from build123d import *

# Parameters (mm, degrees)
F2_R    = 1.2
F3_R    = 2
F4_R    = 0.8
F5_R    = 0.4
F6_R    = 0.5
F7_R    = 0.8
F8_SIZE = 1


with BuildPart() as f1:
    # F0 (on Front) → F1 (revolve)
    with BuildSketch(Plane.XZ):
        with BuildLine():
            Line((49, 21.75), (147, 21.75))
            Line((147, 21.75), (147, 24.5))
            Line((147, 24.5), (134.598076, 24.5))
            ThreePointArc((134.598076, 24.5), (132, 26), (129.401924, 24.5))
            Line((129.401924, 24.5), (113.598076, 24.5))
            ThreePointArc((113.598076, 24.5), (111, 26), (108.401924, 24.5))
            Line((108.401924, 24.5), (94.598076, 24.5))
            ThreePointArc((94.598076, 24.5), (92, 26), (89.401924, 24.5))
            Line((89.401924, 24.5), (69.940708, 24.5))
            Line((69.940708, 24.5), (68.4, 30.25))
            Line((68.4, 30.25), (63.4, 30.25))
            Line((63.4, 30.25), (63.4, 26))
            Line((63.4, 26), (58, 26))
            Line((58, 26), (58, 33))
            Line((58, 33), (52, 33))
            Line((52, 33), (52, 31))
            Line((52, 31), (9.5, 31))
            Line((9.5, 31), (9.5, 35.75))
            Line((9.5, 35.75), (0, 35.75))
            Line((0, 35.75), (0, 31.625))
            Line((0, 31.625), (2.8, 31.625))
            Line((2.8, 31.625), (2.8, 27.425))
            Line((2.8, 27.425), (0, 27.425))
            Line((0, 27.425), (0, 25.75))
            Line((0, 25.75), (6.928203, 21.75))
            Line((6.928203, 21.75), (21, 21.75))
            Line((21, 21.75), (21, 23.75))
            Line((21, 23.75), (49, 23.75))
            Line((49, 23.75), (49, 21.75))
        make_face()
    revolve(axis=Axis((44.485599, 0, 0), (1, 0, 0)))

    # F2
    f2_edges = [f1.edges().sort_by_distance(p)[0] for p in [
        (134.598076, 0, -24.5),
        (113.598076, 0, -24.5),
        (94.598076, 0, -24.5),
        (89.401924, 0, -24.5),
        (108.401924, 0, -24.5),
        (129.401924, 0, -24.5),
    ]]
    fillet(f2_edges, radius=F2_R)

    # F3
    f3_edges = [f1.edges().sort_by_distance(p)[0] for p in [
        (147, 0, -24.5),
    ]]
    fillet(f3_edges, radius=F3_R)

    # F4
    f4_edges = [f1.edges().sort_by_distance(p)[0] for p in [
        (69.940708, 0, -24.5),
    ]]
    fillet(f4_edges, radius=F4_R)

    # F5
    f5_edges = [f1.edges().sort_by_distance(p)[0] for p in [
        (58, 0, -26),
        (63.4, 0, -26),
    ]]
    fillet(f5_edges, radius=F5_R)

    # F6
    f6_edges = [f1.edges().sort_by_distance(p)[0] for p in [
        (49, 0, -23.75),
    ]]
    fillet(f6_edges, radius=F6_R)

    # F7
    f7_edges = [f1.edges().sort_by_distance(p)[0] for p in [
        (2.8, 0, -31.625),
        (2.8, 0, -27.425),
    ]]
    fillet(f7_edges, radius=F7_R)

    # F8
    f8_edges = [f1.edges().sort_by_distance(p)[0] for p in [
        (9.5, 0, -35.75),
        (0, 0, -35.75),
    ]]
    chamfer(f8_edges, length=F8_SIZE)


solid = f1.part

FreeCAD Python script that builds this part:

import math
import FreeCAD as App
import Part
import Sketcher
from FreeCAD import Vector
Q = App.Units.Quantity


def edges_at(feature, points):
    """Names of the edges that pass closest to the given points."""
    edges = feature.Shape.Edges
    near = lambda p: min(range(len(edges)), key=lambda i: edges[i].distToShape(Part.Vertex(*p))[0])
    return sorted({f"Edge{near(p) + 1}" for p in points})

doc = App.newDocument("Part")
body = doc.addObject("PartDesign::Body", "Body")

# Sketch on XZ plane
sketch1 = body.newObject("Sketcher::SketchObject", "Sketch")
sketch1.AttachmentSupport = (doc.getObject("XZ_Plane"), [""])
sketch1.MapMode = "FlatFace"
sketch1.addGeometry([
    Part.LineSegment(Vector(49, 21.8, 0), Vector(147, 21.8, 0)),  # 0
    Part.LineSegment(Vector(147, 21.8, 0), Vector(147, 24.5, 0)),  # 1
    Part.LineSegment(Vector(147, 24.5, 0), Vector(134.6, 24.5, 0)),  # 2
    Part.ArcOfCircle(Part.Circle(Vector(132, 23, 0), Vector(0, 0, 1), 3), math.radians(30), math.radians(150)),  # 3
    Part.LineSegment(Vector(129.4, 24.5, 0), Vector(113.6, 24.5, 0)),  # 4
    Part.ArcOfCircle(Part.Circle(Vector(111, 23, 0), Vector(0, 0, 1), 3), math.radians(30), math.radians(150)),  # 5
    Part.LineSegment(Vector(108.4, 24.5, 0), Vector(94.6, 24.5, 0)),  # 6
    Part.ArcOfCircle(Part.Circle(Vector(92, 23, 0), Vector(0, 0, 1), 3), math.radians(30), math.radians(150)),  # 7
    Part.LineSegment(Vector(89.4, 24.5, 0), Vector(69.9, 24.5, 0)),  # 8
    Part.LineSegment(Vector(69.9, 24.5, 0), Vector(68.4, 30.2, 0)),  # 9
    Part.LineSegment(Vector(68.4, 30.2, 0), Vector(63.4, 30.2, 0)),  # 10
    Part.LineSegment(Vector(63.4, 30.2, 0), Vector(63.4, 26, 0)),  # 11
    Part.LineSegment(Vector(63.4, 26, 0), Vector(58, 26, 0)),  # 12
    Part.LineSegment(Vector(58, 26, 0), Vector(58, 33, 0)),  # 13
    Part.LineSegment(Vector(58, 33, 0), Vector(52, 33, 0)),  # 14
    Part.LineSegment(Vector(52, 33, 0), Vector(52, 31, 0)),  # 15
    Part.LineSegment(Vector(52, 31, 0), Vector(9.5, 31, 0)),  # 16
    Part.LineSegment(Vector(9.5, 31, 0), Vector(9.5, 35.8, 0)),  # 17
    Part.LineSegment(Vector(9.5, 35.8, 0), Vector(0, 35.8, 0)),  # 18
    Part.LineSegment(Vector(0, 35.8, 0), Vector(0, 31.6, 0)),  # 19
    Part.LineSegment(Vector(0, 31.6, 0), Vector(2.8, 31.6, 0)),  # 20
    Part.LineSegment(Vector(2.8, 31.6, 0), Vector(2.8, 27.4, 0)),  # 21
    Part.LineSegment(Vector(2.8, 27.4, 0), Vector(0, 27.4, 0)),  # 22
    Part.LineSegment(Vector(0, 27.4, 0), Vector(0, 25.8, 0)),  # 23
    Part.LineSegment(Vector(0, 25.8, 0), Vector(6.9, 21.8, 0)),  # 24
    Part.LineSegment(Vector(6.9, 21.8, 0), Vector(21, 21.8, 0)),  # 25
    Part.LineSegment(Vector(21, 21.8, 0), Vector(21, 23.8, 0)),  # 26
    Part.LineSegment(Vector(21, 23.8, 0), Vector(49, 23.8, 0)),  # 27
    Part.LineSegment(Vector(49, 23.8, 0), Vector(49, 21.8, 0)),  # 28
], False)
sketch1.addConstraint([
    Sketcher.Constraint("Coincident", 0, 2, 1, 1),
    Sketcher.Constraint("Coincident", 1, 2, 2, 1),
    Sketcher.Constraint("Coincident", 2, 2, 3, 1),
    Sketcher.Constraint("Coincident", 3, 2, 4, 1),
    Sketcher.Constraint("Coincident", 4, 2, 5, 1),
    Sketcher.Constraint("Coincident", 5, 2, 6, 1),
    Sketcher.Constraint("Coincident", 6, 2, 7, 1),
    Sketcher.Constraint("Coincident", 7, 2, 8, 1),
    Sketcher.Constraint("Coincident", 8, 2, 9, 1),
    Sketcher.Constraint("Coincident", 9, 2, 10, 1),
    Sketcher.Constraint("Coincident", 10, 2, 11, 1),
    Sketcher.Constraint("Coincident", 11, 2, 12, 1),
    Sketcher.Constraint("Coincident", 12, 2, 13, 1),
    Sketcher.Constraint("Coincident", 13, 2, 14, 1),
    Sketcher.Constraint("Coincident", 14, 2, 15, 1),
    Sketcher.Constraint("Coincident", 15, 2, 16, 1),
    Sketcher.Constraint("Coincident", 16, 2, 17, 1),
    Sketcher.Constraint("Coincident", 17, 2, 18, 1),
    Sketcher.Constraint("Coincident", 18, 2, 19, 1),
    Sketcher.Constraint("Coincident", 19, 2, 20, 1),
    Sketcher.Constraint("Coincident", 20, 2, 21, 1),
    Sketcher.Constraint("Coincident", 21, 2, 22, 1),
    Sketcher.Constraint("Coincident", 22, 2, 23, 1),
    Sketcher.Constraint("Coincident", 23, 2, 24, 1),
    Sketcher.Constraint("Coincident", 24, 2, 25, 1),
    Sketcher.Constraint("Coincident", 25, 2, 26, 1),
    Sketcher.Constraint("Coincident", 26, 2, 27, 1),
    Sketcher.Constraint("Coincident", 27, 2, 28, 1),
    Sketcher.Constraint("Coincident", 28, 2, 0, 1),
    Sketcher.Constraint("Horizontal", 0),
    Sketcher.Constraint("Vertical", 1),
    Sketcher.Constraint("Horizontal", 2),
    Sketcher.Constraint("Horizontal", 4),
    Sketcher.Constraint("Horizontal", 6),
    Sketcher.Constraint("Horizontal", 8),
    Sketcher.Constraint("Horizontal", 10),
    Sketcher.Constraint("Vertical", 11),
    Sketcher.Constraint("Horizontal", 12),
    Sketcher.Constraint("Vertical", 13),
    Sketcher.Constraint("Horizontal", 14),
    Sketcher.Constraint("Vertical", 15),
    Sketcher.Constraint("Horizontal", 16),
    Sketcher.Constraint("Vertical", 17),
    Sketcher.Constraint("Horizontal", 18),
    Sketcher.Constraint("Vertical", 19),
    Sketcher.Constraint("Horizontal", 20),
    Sketcher.Constraint("Vertical", 21),
    Sketcher.Constraint("Horizontal", 22),
    Sketcher.Constraint("Vertical", 23),
    Sketcher.Constraint("Horizontal", 25),
    Sketcher.Constraint("Vertical", 26),
    Sketcher.Constraint("Horizontal", 27),
    Sketcher.Constraint("Vertical", 28),
    Sketcher.Constraint("Equal", 3, 5),
    Sketcher.Constraint("Equal", 5, 7),
    Sketcher.Constraint("PointOnObject", 18, 2, -2),
    Sketcher.Constraint("PointOnObject", 22, 2, -2),
    Sketcher.Constraint("Horizontal", 3, 3, 5, 3),
    Sketcher.Constraint("Horizontal", 5, 3, 7, 3),
    Sketcher.Constraint("Horizontal", 2, 2, 3, 2),
    Sketcher.Constraint("Horizontal", 4, 2, 5, 2),
    Sketcher.Constraint("Horizontal", 6, 2, 7, 2),
    Sketcher.Constraint("Horizontal", 0, 2, 24, 2),
    Sketcher.Constraint("Equal", 15, 26),
    Sketcher.Constraint("Radius", 3, Q("3 mm")),
    Sketcher.Constraint("DistanceX", 0, 1, 0, 2, Q("98 mm")),
    Sketcher.Constraint("DistanceX", 10, 2, 10, 1, Q("5 mm")),
    Sketcher.Constraint("DistanceX", 14, 2, 14, 1, Q("6 mm")),
    Sketcher.Constraint("DistanceX", 27, 1, 27, 2, Q("28 mm")),
    Sketcher.Constraint("DistanceY", 13, 1, 13, 2, Q("7 mm")),
    Sketcher.Constraint("DistanceY", 15, 2, 15, 1, Q("2 mm")),
    Sketcher.Constraint("Angle", 9, Q("105.000001 deg")),
    Sketcher.Constraint("Angle", 24, Q("-30.000001 deg")),
    Sketcher.Constraint("Distance", 24, Q("8 mm")),
    Sketcher.Constraint("DistanceX", 12, 2, 12, 1, Q("5.4 mm")),
    Sketcher.Constraint("DistanceX", 16, 2, 16, 1, Q("42.5 mm")),
    Sketcher.Constraint("DistanceX", 18, 2, 18, 1, Q("9.5 mm")),
    Sketcher.Constraint("DistanceX", 20, 1, 20, 2, Q("2.8 mm")),
    Sketcher.Constraint("DistanceY", 21, 2, 21, 1, Q("4.2 mm")),
    Sketcher.Constraint("DistanceX", -1, 1, 3, 3, Q("132 mm")),
    Sketcher.Constraint("DistanceY", -1, 1, 3, 3, Q("23 mm")),
    Sketcher.Constraint("DistanceX", -1, 1, 5, 3, Q("111 mm")),
    Sketcher.Constraint("DistanceX", -1, 1, 7, 3, Q("92 mm")),
    Sketcher.Constraint("DistanceX", -1, 1, 0, 2, Q("147 mm")),
    Sketcher.Constraint("DistanceY", -1, 1, 11, 2, Q("26 mm")),
    Sketcher.Constraint("DistanceY", 23, 2, 18, 2, Q("10 mm")),
    Sketcher.Constraint("DistanceY", 1, 1, 1, 2, Q("2.75 mm")),
    Sketcher.Constraint("DistanceY", 11, 2, 11, 1, Q("4.25 mm")),
    Sketcher.Constraint("DistanceY", 17, 1, 17, 2, Q("4.75 mm")),
    Sketcher.Constraint("DistanceY", 19, 2, 19, 1, Q("4.125 mm")),
])
revolution = body.newObject("PartDesign::Revolution", "Revolution")
revolution.Profile = sketch1
revolution.ReferenceAxis = (sketch1, ["H_Axis"])
revolution.Angle = 360
doc.recompute()

fillet = body.newObject("PartDesign::Fillet", "Fillet")
fillet.Base = (revolution, edges_at(revolution, [
    (134.598, 0, -24.5),
    (113.598, 0, -24.5),
    (94.598, 0, -24.5),
    (89.402, 0, -24.5),
    (108.402, 0, -24.5),
    (129.402, 0, -24.5),
]))
fillet.Radius = 1.2
doc.recompute()

fillet2 = body.newObject("PartDesign::Fillet", "Fillet001")
fillet2.Base = (fillet, edges_at(fillet, [(147, 0, -24.5)]))
fillet2.Radius = 2
doc.recompute()

fillet3 = body.newObject("PartDesign::Fillet", "Fillet002")
fillet3.Base = (fillet2, edges_at(fillet2, [(69.941, 0, -24.5)]))
fillet3.Radius = 0.8
doc.recompute()

fillet4 = body.newObject("PartDesign::Fillet", "Fillet003")
fillet4.Base = (fillet3, edges_at(fillet3, [(58, 0, -26), (63.4, 0, -26)]))
fillet4.Radius = 0.4
doc.recompute()

fillet5 = body.newObject("PartDesign::Fillet", "Fillet004")
fillet5.Base = (fillet4, edges_at(fillet4, [(49, 0, -23.75)]))
fillet5.Radius = 0.5
doc.recompute()

fillet6 = body.newObject("PartDesign::Fillet", "Fillet005")
fillet6.Base = (fillet5, edges_at(fillet5, [(2.8, 0, -31.625), (2.8, 0, -27.425)]))
fillet6.Radius = 0.8
doc.recompute()

chamfer = body.newObject("PartDesign::Chamfer", "Chamfer")
chamfer.Base = (fillet6, edges_at(fillet6, [(9.5, 0, -35.75), (0, 0, -35.75)]))
chamfer.Size = 1

doc.recompute()
